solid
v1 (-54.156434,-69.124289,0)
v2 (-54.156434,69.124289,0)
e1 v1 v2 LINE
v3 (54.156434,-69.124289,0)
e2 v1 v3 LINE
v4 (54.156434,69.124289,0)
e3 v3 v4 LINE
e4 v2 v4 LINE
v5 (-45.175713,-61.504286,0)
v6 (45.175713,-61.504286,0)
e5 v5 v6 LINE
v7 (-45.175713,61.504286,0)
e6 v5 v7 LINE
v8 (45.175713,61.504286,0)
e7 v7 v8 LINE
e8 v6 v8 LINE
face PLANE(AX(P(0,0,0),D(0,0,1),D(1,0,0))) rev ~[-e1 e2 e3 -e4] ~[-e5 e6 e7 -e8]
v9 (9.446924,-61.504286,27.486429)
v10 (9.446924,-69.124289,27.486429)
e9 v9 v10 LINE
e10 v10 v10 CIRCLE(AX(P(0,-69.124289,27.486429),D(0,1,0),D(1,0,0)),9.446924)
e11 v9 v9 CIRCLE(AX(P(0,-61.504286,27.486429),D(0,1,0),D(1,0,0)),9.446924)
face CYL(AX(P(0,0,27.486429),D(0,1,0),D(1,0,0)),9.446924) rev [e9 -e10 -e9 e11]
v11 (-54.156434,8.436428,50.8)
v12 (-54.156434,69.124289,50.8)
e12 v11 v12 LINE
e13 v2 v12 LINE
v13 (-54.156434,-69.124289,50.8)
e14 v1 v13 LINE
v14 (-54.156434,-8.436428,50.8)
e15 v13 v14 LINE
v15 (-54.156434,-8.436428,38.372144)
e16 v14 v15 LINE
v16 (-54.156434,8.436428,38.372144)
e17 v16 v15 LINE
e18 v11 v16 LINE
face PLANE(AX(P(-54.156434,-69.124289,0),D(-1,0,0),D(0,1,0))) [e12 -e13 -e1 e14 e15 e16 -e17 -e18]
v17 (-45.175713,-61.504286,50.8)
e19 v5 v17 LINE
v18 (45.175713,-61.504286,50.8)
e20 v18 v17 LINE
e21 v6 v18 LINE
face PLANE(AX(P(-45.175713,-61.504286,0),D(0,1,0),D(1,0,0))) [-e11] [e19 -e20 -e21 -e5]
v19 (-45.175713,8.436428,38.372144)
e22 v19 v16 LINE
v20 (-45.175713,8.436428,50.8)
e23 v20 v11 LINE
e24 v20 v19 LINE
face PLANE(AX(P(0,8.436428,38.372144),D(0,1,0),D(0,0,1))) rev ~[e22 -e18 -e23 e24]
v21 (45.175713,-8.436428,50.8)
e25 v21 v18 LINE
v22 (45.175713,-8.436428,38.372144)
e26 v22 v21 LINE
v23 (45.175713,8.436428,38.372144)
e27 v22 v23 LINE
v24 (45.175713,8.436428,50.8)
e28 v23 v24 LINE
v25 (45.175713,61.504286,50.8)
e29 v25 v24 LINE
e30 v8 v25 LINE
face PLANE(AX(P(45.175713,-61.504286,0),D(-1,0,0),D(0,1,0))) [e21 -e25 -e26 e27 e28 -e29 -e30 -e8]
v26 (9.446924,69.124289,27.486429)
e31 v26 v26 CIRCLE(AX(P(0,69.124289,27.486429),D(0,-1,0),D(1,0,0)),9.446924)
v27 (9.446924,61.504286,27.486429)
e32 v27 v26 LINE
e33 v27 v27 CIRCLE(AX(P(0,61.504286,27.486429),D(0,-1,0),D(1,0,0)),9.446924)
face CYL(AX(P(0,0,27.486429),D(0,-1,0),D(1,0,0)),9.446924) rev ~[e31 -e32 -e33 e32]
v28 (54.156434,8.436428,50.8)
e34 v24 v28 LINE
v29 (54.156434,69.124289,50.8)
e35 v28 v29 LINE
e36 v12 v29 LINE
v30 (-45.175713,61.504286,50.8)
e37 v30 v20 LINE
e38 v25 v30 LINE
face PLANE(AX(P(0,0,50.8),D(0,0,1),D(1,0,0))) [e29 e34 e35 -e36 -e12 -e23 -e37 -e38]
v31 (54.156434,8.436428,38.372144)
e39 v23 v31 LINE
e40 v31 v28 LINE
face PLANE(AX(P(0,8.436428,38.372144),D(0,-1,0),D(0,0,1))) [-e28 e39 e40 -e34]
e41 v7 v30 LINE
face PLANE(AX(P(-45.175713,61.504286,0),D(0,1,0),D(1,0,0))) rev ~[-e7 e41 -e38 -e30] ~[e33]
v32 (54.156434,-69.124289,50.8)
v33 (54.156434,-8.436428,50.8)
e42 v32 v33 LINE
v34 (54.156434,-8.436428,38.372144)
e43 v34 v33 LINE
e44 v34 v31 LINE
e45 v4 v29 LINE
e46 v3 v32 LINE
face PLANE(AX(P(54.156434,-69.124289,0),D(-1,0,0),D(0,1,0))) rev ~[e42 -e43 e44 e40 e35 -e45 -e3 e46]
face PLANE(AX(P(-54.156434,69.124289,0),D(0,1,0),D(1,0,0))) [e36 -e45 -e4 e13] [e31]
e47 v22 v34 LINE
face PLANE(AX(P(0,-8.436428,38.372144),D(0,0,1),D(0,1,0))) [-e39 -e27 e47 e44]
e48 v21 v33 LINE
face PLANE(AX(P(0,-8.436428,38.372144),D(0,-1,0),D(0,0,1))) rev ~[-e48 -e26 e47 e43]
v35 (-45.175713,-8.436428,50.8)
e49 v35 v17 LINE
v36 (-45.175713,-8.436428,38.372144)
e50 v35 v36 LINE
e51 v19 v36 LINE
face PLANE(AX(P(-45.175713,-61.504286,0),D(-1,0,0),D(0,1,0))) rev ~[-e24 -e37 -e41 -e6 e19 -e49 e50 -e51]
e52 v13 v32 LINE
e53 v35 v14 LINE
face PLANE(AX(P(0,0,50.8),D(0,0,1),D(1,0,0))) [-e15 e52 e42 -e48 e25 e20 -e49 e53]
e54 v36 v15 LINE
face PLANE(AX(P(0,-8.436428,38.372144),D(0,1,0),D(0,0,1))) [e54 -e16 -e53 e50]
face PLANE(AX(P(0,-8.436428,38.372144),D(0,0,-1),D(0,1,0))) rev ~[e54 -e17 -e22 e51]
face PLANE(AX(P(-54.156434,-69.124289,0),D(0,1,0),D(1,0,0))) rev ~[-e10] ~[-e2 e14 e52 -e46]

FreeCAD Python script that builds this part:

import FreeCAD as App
import Part
import Sketcher

V = App.Vector
Q = App.Units.Quantity

doc = App.newDocument("Part")
body = doc.addObject("PartDesign::Body", "Body")

sketch1 = body.newObject("Sketcher::SketchObject", "Sketch")
sketch1.AttachmentSupport = (doc.getObject("XY_Plane"), [""])
sketch1.MapMode = "FlatFace"
sketch1.addGeometry(Part.LineSegment(V(-54, 69, 0), V(-54, -69, 0)), False)
sketch1.addGeometry(Part.LineSegment(V(-54, -69, 0), V(54, -69, 0)), False)
sketch1.addGeometry(Part.LineSegment(V(54, -69, 0), V(54, 69, 0)), False)
sketch1.addGeometry(Part.LineSegment(V(54, 69, 0), V(-54, 69, 0)), False)
sketch1.addConstraint(Sketcher.Constraint("Coincident", 0, 2, 1, 1))
sketch1.addConstraint(Sketcher.Constraint("Coincident", 1, 2, 2, 1))
sketch1.addConstraint(Sketcher.Constraint("Coincident", 2, 2, 3, 1))
sketch1.addConstraint(Sketcher.Constraint("Coincident", 3, 2, 0, 1))
sketch1.addConstraint(Sketcher.Constraint("Vertical", 0))
sketch1.addConstraint(Sketcher.Constraint("Horizontal", 1))
sketch1.addConstraint(Sketcher.Constraint("Vertical", 2))
sketch1.addConstraint(Sketcher.Constraint("Horizontal", 3))
sketch1.addConstraint(Sketcher.Constraint("Symmetric", 0, 2, 2, 2, -1, 1))
sketch1.addConstraint(Sketcher.Constraint("DistanceY", 0, 2, 0, 1, Q("138.248578 mm")))
sketch1.addConstraint(Sketcher.Constraint("DistanceX", 1, 1, 1, 2, Q("108.312868 mm")))
pad1 = body.newObject("PartDesign::Pad", "Pad")
pad1.Profile = sketch1
pad1.Length = Q("2 in")

sketch2 = body.newObject("Sketcher::SketchObject", "Sketch001")
sketch2.AttachmentSupport = (doc.getObject("XY_Plane"), [""])
sketch2.MapMode = "FlatFace"
sketch2.addGeometry(Part.LineSegment(V(-45, 62, 0), V(-45, -62, 0)), False)
sketch2.addGeometry(Part.LineSegment(V(-45, -62, 0), V(45, -62, 0)), False)
sketch2.addGeometry(Part.LineSegment(V(45, -62, 0), V(45, 62, 0)), False)
sketch2.addGeometry(Part.LineSegment(V(45, 62, 0), V(-45, 62, 0)), False)
sketch2.addConstraint(Sketcher.Constraint("Coincident", 0, 2, 1, 1))
sketch2.addConstraint(Sketcher.Constraint("Coincident", 1, 2, 2, 1))
sketch2.addConstraint(Sketcher.Constraint("Coincident", 2, 2, 3, 1))
sketch2.addConstraint(Sketcher.Constraint("Coincident", 3, 2, 0, 1))
sketch2.addConstraint(Sketcher.Constraint("Vertical", 0))
sketch2.addConstraint(Sketcher.Constraint("Horizontal", 1))
sketch2.addConstraint(Sketcher.Constraint("Vertical", 2))
sketch2.addConstraint(Sketcher.Constraint("Horizontal", 3))
sketch2.addConstraint(Sketcher.Constraint("Symmetric", 0, 2, 2, 2, -1, 1))
sketch2.addConstraint(Sketcher.Constraint("DistanceY", 0, 2, 0, 1, Q("123.008572 mm")))
sketch2.addConstraint(Sketcher.Constraint("DistanceX", 1, 1, 1, 2, Q("90.351426 mm")))
pocket1 = body.newObject("PartDesign::Pocket", "Pocket")
pocket1.Profile = sketch2
pocket1.Length = Q("4.37 in")
pocket1.Reversed = True

sketch3 = body.newObject("Sketcher::SketchObject", "Sketch002")
sketch3.AttachmentSupport = (doc.getObject("YZ_Plane"), [""])
sketch3.MapMode = "FlatFace"
sketch3.addGeometry(Part.LineSegment(V(-8, 51, 0), V(-8, 38, 0)), False)
sketch3.addGeometry(Part.LineSegment(V(-8, 38, 0), V(8, 38, 0)), False)
sketch3.addGeometry(Part.LineSegment(V(8, 38, 0), V(8, 51, 0)), False)
sketch3.addGeometry(Part.LineSegment(V(8, 51, 0), V(-8, 51, 0)), False)
sketch3.addConstraint(Sketcher.Constraint("Coincident", 0, 2, 1, 1))
sketch3.addConstraint(Sketcher.Constraint("Coincident", 1, 2, 2, 1))
sketch3.addConstraint(Sketcher.Constraint("Coincident", 2, 2, 3, 1))
sketch3.addConstraint(Sketcher.Constraint("Coincident", 3, 2, 0, 1))
sketch3.addConstraint(Sketcher.Constraint("Vertical", 0))
sketch3.addConstraint(Sketcher.Constraint("Horizontal", 1))
sketch3.addConstraint(Sketcher.Constraint("Vertical", 2))
sketch3.addConstraint(Sketcher.Constraint("Horizontal", 3))
sketch3.addConstraint(Sketcher.Constraint("DistanceY", 0, 2, 0, 1, Q("12.51857 mm")))
sketch3.addConstraint(Sketcher.Constraint("DistanceX", 1, 1, 1, 2, Q("16.872856 mm")))
sketch3.addConstraint(Sketcher.Constraint("DistanceX", 0, 2, -1, 1, Q("8.436428 mm")))
sketch3.addConstraint(Sketcher.Constraint("DistanceY", -1, 1, 0, 2, Q("38.372144 mm")))
pocket2 = body.newObject("PartDesign::Pocket", "Pocket001")
pocket2.Profile = sketch3
pocket2.Length = Q("2.63 in")

sketch4 = body.newObject("Sketcher::SketchObject", "Sketch003")
sketch4.AttachmentSupport = (doc.getObject("YZ_Plane"), [""])
sketch4.MapMode = "FlatFace"
sketch4.addGeometry(Part.LineSegment(V(-8, 51, 0), V(-8, 38, 0)), False)
sketch4.addGeometry(Part.LineSegment(V(-8, 38, 0), V(8, 38, 0)), False)
sketch4.addGeometry(Part.LineSegment(V(8, 38, 0), V(8, 51, 0)), False)
sketch4.addGeometry(Part.LineSegment(V(8, 51, 0), V(-8, 51, 0)), False)
sketch4.addConstraint(Sketcher.Constraint("Coincident", 0, 2, 1, 1))
sketch4.addConstraint(Sketcher.Constraint("Coincident", 1, 2, 2, 1))
sketch4.addConstraint(Sketcher.Constraint("Coincident", 2, 2, 3, 1))
sketch4.addConstraint(Sketcher.Constraint("Coincident", 3, 2, 0, 1))
sketch4.addConstraint(Sketcher.Constraint("Vertical", 0))
sketch4.addConstraint(Sketcher.Constraint("Horizontal", 1))
sketch4.addConstraint(Sketcher.Constraint("Vertical", 2))
sketch4.addConstraint(Sketcher.Constraint("Horizontal", 3))
sketch4.addConstraint(Sketcher.Constraint("DistanceY", 0, 2, 0, 1, Q("12.51857 mm")))
sketch4.addConstraint(Sketcher.Constraint("DistanceX", 1, 1, 1, 2, Q("16.872856 mm")))
sketch4.addConstraint(Sketcher.Constraint("DistanceX", 0, 2, -1, 1, Q("8.436428 mm")))
sketch4.addConstraint(Sketcher.Constraint("DistanceY", -1, 1, 0, 2, Q("38.372144 mm")))
pocket3 = body.newObject("PartDesign::Pocket", "Pocket002")
pocket3.Profile = sketch4
pocket3.Length = Q("6.4 in")
pocket3.Reversed = True

sketch5 = body.newObject("Sketcher::SketchObject", "Sketch004")
sketch5.AttachmentSupport = (doc.getObject("XZ_Plane"), [""])
sketch5.MapMode = "FlatFace"
sketch5.addGeometry(Part.Circle(V(0, 27, 0), V(0, 0, 1), 9), False)
sketch5.addConstraint(Sketcher.Constraint("PointOnObject", 0, 3, -2))
sketch5.addConstraint(Sketcher.Constraint("Diameter", 0, Q("18.893848 mm")))
sketch5.addConstraint(Sketcher.Constraint("DistanceY", -1, 1, 0, 3, Q("27.486429 mm")))
pocket4 = body.newObject("PartDesign::Pocket", "Pocket003")
pocket4.Profile = sketch5
pocket4.Length = Q("4.88 in")
pocket4.Reversed = True

sketch6 = body.newObject("Sketcher::SketchObject", "Sketch005")
sketch6.AttachmentSupport = (doc.getObject("XZ_Plane"), [""])
sketch6.MapMode = "FlatFace"
sketch6.addGeometry(Part.Circle(V(0, 27, 0), V(0, 0, 1), 9), False)
sketch6.addConstraint(Sketcher.Constraint("PointOnObject", 0, 3, -2))
sketch6.addConstraint(Sketcher.Constraint("Diameter", 0, Q("18.893848 mm")))
sketch6.addConstraint(Sketcher.Constraint("DistanceY", -1, 1, 0, 3, Q("27.486429 mm")))
pocket5 = body.newObject("PartDesign::Pocket", "Pocket004")
pocket5.Profile = sketch6
pocket5.Length = Q("4.63 in")

doc.recompute()
